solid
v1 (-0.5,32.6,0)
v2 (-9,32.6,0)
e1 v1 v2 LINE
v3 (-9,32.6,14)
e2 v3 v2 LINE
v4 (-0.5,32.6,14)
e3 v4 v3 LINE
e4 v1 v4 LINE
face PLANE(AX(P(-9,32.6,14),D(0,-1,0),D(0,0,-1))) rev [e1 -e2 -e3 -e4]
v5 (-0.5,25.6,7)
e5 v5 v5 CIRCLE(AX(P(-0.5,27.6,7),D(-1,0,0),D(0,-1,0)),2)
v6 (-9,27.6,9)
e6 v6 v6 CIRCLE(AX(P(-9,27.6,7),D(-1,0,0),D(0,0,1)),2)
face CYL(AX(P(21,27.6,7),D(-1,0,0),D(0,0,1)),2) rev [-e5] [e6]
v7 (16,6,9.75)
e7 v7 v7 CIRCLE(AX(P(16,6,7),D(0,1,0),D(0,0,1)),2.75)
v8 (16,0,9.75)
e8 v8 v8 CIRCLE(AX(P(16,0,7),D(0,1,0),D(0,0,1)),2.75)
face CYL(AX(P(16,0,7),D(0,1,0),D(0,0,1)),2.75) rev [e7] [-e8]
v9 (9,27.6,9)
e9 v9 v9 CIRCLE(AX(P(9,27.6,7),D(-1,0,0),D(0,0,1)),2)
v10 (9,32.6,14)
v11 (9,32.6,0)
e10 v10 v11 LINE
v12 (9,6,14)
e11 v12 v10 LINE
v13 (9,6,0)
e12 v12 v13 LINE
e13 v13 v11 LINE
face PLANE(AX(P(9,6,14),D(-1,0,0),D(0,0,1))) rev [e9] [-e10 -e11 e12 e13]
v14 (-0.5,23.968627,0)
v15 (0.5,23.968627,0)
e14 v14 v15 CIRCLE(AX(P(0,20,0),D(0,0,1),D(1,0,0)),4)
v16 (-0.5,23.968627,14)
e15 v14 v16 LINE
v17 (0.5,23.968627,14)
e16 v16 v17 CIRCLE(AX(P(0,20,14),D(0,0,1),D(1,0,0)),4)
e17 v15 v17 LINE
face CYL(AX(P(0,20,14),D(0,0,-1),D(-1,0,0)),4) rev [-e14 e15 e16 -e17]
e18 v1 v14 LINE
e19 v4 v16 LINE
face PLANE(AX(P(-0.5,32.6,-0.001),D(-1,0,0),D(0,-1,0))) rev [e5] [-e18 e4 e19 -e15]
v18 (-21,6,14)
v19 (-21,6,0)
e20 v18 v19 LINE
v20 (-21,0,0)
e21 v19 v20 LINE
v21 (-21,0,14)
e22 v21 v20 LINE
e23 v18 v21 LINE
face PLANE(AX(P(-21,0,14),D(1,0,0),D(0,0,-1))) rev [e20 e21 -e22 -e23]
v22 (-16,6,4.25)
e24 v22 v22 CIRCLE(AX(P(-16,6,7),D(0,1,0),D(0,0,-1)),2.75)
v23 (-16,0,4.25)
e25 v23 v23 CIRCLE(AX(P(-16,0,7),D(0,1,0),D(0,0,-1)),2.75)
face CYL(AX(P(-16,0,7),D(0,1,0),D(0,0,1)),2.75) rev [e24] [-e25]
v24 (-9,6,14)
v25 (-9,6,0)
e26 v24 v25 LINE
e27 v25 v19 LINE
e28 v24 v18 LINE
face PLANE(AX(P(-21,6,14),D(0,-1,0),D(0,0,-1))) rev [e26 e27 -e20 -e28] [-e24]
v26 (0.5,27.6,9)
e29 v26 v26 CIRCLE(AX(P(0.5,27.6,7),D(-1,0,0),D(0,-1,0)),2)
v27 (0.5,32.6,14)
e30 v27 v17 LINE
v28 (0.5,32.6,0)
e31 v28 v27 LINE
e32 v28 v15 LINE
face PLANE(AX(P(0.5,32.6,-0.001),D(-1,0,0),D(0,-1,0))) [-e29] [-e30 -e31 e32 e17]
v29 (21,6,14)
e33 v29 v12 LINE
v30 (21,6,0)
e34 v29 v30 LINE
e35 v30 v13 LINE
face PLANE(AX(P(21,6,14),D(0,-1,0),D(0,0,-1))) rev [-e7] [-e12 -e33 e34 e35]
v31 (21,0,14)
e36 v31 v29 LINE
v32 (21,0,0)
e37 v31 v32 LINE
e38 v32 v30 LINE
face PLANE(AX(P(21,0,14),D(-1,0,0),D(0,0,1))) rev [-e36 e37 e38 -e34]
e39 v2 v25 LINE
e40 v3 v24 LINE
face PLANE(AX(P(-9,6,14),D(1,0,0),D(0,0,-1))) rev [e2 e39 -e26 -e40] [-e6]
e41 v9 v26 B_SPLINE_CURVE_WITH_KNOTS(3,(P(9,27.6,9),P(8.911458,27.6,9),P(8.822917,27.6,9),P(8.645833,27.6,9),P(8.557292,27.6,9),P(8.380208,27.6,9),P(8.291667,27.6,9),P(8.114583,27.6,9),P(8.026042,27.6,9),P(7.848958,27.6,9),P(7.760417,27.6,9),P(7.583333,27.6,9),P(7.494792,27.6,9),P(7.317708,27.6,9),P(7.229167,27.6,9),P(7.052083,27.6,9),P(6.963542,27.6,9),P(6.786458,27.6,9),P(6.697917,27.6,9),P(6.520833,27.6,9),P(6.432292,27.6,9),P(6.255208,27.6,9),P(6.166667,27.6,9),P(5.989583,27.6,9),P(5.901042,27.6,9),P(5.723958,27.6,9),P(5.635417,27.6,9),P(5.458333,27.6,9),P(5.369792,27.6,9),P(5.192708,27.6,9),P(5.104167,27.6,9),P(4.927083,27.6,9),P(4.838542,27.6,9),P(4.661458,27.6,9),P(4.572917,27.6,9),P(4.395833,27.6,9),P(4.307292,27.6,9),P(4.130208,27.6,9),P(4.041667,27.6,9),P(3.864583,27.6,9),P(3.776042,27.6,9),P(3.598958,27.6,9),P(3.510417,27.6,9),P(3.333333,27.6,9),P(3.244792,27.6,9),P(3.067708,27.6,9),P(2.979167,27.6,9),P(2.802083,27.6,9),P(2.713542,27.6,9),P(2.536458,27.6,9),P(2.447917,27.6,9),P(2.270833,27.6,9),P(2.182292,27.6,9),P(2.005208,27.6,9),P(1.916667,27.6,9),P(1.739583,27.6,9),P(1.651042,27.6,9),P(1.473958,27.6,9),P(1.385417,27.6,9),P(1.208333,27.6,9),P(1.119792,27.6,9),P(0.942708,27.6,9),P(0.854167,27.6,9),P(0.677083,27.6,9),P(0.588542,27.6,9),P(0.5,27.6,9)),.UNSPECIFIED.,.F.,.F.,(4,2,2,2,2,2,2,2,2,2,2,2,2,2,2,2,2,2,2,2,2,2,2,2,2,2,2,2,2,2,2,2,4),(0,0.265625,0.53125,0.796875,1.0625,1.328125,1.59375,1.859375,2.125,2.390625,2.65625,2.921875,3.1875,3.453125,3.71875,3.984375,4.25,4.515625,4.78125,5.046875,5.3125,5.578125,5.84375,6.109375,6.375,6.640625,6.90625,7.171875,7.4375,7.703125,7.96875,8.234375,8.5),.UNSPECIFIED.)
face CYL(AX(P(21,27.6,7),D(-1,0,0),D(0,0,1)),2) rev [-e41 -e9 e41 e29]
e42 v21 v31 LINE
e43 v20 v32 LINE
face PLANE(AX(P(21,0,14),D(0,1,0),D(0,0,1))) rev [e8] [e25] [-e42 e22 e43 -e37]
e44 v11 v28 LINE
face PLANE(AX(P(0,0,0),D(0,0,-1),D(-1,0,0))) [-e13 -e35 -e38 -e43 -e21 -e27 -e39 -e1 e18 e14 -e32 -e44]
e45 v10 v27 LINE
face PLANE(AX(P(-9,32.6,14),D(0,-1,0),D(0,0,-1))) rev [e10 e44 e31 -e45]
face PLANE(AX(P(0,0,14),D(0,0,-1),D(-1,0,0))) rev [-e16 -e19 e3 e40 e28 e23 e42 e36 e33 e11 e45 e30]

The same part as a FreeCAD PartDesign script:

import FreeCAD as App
import Part
import Sketcher

V = App.Vector

doc = App.newDocument("Part")
body = doc.addObject("PartDesign::Body", "Body")

# Sketch on XY plane
sketch1 = doc.addObject("Sketcher::SketchObject", "Sketch")
body.addObject(sketch1)
sketch1.AttachmentSupport = (doc.XY_Plane, [""])
sketch1.MapMode = "FlatFace"
sketch1.addGeometry([
    Part.LineSegment(V(-21, 0, 0), V(21, 0, 0)),  # 0
    Part.LineSegment(V(21, 0, 0), V(21, 6, 0)),  # 1
    Part.LineSegment(V(21, 6, 0), V(9, 6, 0)),  # 2
    Part.LineSegment(V(9, 6, 0), V(9, 32.6, 0)),  # 3
    Part.LineSegment(V(9, 32.6, 0), V(-9, 32.6, 0)),  # 4
    Part.LineSegment(V(-9, 32.6, 0), V(-9, 6, 0)),  # 5
    Part.LineSegment(V(-9, 6, 0), V(-21, 6, 0)),  # 6
    Part.LineSegment(V(-21, 6, 0), V(-21, 0, 0)),  # 7
    Part.Circle(V(0, 20, 0), V(0, 0, 1), 4),  # 8
], False)
sketch1.addConstraint([
    Sketcher.Constraint("Coincident", 0, 2, 1, 1),
    Sketcher.Constraint("Coincident", 1, 2, 2, 1),
    Sketcher.Constraint("Coincident", 2, 2, 3, 1),
    Sketcher.Constraint("Coincident", 3, 2, 4, 1),
    Sketcher.Constraint("Coincident", 4, 2, 5, 1),
    Sketcher.Constraint("Coincident", 5, 2, 6, 1),
    Sketcher.Constraint("Coincident", 6, 2, 7, 1),
    Sketcher.Constraint("Coincident", 7, 2, 0, 1),
    Sketcher.Constraint("Horizontal", 0),
    Sketcher.Constraint("Vertical", 1),
    Sketcher.Constraint("Horizontal", 2),
    Sketcher.Constraint("Vertical", 3),
    Sketcher.Constraint("Horizontal", 4),
    Sketcher.Constraint("Vertical", 5),
    Sketcher.Constraint("Horizontal", 6),
    Sketcher.Constraint("Vertical", 7),
    Sketcher.Constraint("Symmetric", 0, 2, 7, 2, -1, 1),
    Sketcher.Constraint("Symmetric", 2, 2, 5, 2, -2),
    Sketcher.Constraint("PointOnObject", 8, 3, -2),
    Sketcher.Constraint("Diameter", 8, 8.0),
    Sketcher.Constraint("DistanceX", 0, 1, 0, 2, 42.0),
    Sketcher.Constraint("DistanceX", 2, 2, 2, 1, 12.0),
    Sketcher.Constraint("DistanceY", 1, 1, 1, 2, 6.0),
    Sketcher.Constraint("DistanceY", 3, 1, 3, 2, 26.6),
    Sketcher.Constraint("DistanceY", -1, 1, 8, 3, 20.0),
])
pad1 = doc.addObject("PartDesign::Pad", "Pad")
body.addObject(pad1)
pad1.Profile = sketch1
pad1.Length = 14

# Sketch on XZ plane
sketch2 = doc.addObject("Sketcher::SketchObject", "Sketch001")
body.addObject(sketch2)
sketch2.AttachmentSupport = (doc.XZ_Plane, [""])
sketch2.MapMode = "FlatFace"
sketch2.AttachmentOffset = App.Placement(V(0, 0, -6), App.Rotation())
sketch2.addGeometry([
    Part.Circle(V(16, 7, 0), V(0, 0, 1), 2.8),
    Part.Circle(V(-16, 7, 0), V(0, 0, 1), 2.8),
], False)
sketch2.addConstraint([
    Sketcher.Constraint("Equal", 0, 1),
    Sketcher.Constraint("Symmetric", 0, 3, 1, 3, -2),
    Sketcher.Constraint("Diameter", 0, 5.5),
    Sketcher.Constraint("DistanceX", -1, 1, 0, 3, 16.0),
    Sketcher.Constraint("DistanceY", -1, 1, 0, 3, 7.0),
])
pocket1 = doc.addObject("PartDesign::Pocket", "Pocket")
body.addObject(pocket1)
pocket1.Profile = sketch2
pocket1.Type = "ThroughAll"
pocket1.Reversed = True

# Sketch on YZ plane
sketch3 = doc.addObject("Sketcher::SketchObject", "Sketch002")
body.addObject(sketch3)
sketch3.AttachmentSupport = (doc.YZ_Plane, [""])
sketch3.MapMode = "FlatFace"
sketch3.AttachmentOffset = App.Placement(V(0, 0, -9), App.Rotation())
sketch3.addGeometry(Part.Circle(V(27.6, 7, 0), V(0, 0, 1), 2), False)
sketch3.addConstraint([
    Sketcher.Constraint("Diameter", 0, 4.0),
    Sketcher.Constraint("DistanceY", -1, 1, 0, 3, 7.0),
    Sketcher.Constraint("DistanceX", -1, 1, 0, 3, 27.6),
])
pocket2 = doc.addObject("PartDesign::Pocket", "Pocket001")
body.addObject(pocket2)
pocket2.Profile = sketch3
pocket2.Type = "ThroughAll"
pocket2.Reversed = True

# Sketch on XY plane
sketch4 = doc.addObject("Sketcher::SketchObject", "Sketch003")
body.addObject(sketch4)
sketch4.AttachmentSupport = (doc.XY_Plane, [""])
sketch4.MapMode = "FlatFace"
sketch4.AttachmentOffset = App.Placement(V(0, 0, 14), App.Rotation())
sketch4.addGeometry([
    Part.LineSegment(V(-0.5, 32.6, 0), V(-0.5, 24, 0)),
    Part.LineSegment(V(-0.5, 24, 0), V(0.5, 24, 0)),
    Part.LineSegment(V(0.5, 24, 0), V(0.5, 32.6, 0)),
    Part.LineSegment(V(0.5, 32.6, 0), V(-0.5, 32.6, 0)),
], False)
sketch4.addConstraint([
    Sketcher.Constraint("Coincident", 0, 2, 1, 1),
    Sketcher.Constraint("Coincident", 1, 2, 2, 1),
    Sketcher.Constraint("Coincident", 2, 2, 3, 1),
    Sketcher.Constraint("Coincident", 3, 2, 0, 1),
    Sketcher.Constraint("Vertical", 0),
    Sketcher.Constraint("Horizontal", 1),
    Sketcher.Constraint("Vertical", 2),
    Sketcher.Constraint("Horizontal", 3),
    Sketcher.Constraint("DistanceX", 1, 1, 1, 2, 1.0),
    Sketcher.Constraint("DistanceX", 0, 2, -1, 1, 0.5),
    Sketcher.Constraint("DistanceY", -1, 1, 2, 2, 32.6),
    Sketcher.Constraint("DistanceY", 0, 2, 0, 1, 8.631373),
])
pocket3 = doc.addObject("PartDesign::Pocket", "Pocket002")
body.addObject(pocket3)
pocket3.Profile = sketch4
pocket3.Type = "UpToFirst"

doc.recompute()
